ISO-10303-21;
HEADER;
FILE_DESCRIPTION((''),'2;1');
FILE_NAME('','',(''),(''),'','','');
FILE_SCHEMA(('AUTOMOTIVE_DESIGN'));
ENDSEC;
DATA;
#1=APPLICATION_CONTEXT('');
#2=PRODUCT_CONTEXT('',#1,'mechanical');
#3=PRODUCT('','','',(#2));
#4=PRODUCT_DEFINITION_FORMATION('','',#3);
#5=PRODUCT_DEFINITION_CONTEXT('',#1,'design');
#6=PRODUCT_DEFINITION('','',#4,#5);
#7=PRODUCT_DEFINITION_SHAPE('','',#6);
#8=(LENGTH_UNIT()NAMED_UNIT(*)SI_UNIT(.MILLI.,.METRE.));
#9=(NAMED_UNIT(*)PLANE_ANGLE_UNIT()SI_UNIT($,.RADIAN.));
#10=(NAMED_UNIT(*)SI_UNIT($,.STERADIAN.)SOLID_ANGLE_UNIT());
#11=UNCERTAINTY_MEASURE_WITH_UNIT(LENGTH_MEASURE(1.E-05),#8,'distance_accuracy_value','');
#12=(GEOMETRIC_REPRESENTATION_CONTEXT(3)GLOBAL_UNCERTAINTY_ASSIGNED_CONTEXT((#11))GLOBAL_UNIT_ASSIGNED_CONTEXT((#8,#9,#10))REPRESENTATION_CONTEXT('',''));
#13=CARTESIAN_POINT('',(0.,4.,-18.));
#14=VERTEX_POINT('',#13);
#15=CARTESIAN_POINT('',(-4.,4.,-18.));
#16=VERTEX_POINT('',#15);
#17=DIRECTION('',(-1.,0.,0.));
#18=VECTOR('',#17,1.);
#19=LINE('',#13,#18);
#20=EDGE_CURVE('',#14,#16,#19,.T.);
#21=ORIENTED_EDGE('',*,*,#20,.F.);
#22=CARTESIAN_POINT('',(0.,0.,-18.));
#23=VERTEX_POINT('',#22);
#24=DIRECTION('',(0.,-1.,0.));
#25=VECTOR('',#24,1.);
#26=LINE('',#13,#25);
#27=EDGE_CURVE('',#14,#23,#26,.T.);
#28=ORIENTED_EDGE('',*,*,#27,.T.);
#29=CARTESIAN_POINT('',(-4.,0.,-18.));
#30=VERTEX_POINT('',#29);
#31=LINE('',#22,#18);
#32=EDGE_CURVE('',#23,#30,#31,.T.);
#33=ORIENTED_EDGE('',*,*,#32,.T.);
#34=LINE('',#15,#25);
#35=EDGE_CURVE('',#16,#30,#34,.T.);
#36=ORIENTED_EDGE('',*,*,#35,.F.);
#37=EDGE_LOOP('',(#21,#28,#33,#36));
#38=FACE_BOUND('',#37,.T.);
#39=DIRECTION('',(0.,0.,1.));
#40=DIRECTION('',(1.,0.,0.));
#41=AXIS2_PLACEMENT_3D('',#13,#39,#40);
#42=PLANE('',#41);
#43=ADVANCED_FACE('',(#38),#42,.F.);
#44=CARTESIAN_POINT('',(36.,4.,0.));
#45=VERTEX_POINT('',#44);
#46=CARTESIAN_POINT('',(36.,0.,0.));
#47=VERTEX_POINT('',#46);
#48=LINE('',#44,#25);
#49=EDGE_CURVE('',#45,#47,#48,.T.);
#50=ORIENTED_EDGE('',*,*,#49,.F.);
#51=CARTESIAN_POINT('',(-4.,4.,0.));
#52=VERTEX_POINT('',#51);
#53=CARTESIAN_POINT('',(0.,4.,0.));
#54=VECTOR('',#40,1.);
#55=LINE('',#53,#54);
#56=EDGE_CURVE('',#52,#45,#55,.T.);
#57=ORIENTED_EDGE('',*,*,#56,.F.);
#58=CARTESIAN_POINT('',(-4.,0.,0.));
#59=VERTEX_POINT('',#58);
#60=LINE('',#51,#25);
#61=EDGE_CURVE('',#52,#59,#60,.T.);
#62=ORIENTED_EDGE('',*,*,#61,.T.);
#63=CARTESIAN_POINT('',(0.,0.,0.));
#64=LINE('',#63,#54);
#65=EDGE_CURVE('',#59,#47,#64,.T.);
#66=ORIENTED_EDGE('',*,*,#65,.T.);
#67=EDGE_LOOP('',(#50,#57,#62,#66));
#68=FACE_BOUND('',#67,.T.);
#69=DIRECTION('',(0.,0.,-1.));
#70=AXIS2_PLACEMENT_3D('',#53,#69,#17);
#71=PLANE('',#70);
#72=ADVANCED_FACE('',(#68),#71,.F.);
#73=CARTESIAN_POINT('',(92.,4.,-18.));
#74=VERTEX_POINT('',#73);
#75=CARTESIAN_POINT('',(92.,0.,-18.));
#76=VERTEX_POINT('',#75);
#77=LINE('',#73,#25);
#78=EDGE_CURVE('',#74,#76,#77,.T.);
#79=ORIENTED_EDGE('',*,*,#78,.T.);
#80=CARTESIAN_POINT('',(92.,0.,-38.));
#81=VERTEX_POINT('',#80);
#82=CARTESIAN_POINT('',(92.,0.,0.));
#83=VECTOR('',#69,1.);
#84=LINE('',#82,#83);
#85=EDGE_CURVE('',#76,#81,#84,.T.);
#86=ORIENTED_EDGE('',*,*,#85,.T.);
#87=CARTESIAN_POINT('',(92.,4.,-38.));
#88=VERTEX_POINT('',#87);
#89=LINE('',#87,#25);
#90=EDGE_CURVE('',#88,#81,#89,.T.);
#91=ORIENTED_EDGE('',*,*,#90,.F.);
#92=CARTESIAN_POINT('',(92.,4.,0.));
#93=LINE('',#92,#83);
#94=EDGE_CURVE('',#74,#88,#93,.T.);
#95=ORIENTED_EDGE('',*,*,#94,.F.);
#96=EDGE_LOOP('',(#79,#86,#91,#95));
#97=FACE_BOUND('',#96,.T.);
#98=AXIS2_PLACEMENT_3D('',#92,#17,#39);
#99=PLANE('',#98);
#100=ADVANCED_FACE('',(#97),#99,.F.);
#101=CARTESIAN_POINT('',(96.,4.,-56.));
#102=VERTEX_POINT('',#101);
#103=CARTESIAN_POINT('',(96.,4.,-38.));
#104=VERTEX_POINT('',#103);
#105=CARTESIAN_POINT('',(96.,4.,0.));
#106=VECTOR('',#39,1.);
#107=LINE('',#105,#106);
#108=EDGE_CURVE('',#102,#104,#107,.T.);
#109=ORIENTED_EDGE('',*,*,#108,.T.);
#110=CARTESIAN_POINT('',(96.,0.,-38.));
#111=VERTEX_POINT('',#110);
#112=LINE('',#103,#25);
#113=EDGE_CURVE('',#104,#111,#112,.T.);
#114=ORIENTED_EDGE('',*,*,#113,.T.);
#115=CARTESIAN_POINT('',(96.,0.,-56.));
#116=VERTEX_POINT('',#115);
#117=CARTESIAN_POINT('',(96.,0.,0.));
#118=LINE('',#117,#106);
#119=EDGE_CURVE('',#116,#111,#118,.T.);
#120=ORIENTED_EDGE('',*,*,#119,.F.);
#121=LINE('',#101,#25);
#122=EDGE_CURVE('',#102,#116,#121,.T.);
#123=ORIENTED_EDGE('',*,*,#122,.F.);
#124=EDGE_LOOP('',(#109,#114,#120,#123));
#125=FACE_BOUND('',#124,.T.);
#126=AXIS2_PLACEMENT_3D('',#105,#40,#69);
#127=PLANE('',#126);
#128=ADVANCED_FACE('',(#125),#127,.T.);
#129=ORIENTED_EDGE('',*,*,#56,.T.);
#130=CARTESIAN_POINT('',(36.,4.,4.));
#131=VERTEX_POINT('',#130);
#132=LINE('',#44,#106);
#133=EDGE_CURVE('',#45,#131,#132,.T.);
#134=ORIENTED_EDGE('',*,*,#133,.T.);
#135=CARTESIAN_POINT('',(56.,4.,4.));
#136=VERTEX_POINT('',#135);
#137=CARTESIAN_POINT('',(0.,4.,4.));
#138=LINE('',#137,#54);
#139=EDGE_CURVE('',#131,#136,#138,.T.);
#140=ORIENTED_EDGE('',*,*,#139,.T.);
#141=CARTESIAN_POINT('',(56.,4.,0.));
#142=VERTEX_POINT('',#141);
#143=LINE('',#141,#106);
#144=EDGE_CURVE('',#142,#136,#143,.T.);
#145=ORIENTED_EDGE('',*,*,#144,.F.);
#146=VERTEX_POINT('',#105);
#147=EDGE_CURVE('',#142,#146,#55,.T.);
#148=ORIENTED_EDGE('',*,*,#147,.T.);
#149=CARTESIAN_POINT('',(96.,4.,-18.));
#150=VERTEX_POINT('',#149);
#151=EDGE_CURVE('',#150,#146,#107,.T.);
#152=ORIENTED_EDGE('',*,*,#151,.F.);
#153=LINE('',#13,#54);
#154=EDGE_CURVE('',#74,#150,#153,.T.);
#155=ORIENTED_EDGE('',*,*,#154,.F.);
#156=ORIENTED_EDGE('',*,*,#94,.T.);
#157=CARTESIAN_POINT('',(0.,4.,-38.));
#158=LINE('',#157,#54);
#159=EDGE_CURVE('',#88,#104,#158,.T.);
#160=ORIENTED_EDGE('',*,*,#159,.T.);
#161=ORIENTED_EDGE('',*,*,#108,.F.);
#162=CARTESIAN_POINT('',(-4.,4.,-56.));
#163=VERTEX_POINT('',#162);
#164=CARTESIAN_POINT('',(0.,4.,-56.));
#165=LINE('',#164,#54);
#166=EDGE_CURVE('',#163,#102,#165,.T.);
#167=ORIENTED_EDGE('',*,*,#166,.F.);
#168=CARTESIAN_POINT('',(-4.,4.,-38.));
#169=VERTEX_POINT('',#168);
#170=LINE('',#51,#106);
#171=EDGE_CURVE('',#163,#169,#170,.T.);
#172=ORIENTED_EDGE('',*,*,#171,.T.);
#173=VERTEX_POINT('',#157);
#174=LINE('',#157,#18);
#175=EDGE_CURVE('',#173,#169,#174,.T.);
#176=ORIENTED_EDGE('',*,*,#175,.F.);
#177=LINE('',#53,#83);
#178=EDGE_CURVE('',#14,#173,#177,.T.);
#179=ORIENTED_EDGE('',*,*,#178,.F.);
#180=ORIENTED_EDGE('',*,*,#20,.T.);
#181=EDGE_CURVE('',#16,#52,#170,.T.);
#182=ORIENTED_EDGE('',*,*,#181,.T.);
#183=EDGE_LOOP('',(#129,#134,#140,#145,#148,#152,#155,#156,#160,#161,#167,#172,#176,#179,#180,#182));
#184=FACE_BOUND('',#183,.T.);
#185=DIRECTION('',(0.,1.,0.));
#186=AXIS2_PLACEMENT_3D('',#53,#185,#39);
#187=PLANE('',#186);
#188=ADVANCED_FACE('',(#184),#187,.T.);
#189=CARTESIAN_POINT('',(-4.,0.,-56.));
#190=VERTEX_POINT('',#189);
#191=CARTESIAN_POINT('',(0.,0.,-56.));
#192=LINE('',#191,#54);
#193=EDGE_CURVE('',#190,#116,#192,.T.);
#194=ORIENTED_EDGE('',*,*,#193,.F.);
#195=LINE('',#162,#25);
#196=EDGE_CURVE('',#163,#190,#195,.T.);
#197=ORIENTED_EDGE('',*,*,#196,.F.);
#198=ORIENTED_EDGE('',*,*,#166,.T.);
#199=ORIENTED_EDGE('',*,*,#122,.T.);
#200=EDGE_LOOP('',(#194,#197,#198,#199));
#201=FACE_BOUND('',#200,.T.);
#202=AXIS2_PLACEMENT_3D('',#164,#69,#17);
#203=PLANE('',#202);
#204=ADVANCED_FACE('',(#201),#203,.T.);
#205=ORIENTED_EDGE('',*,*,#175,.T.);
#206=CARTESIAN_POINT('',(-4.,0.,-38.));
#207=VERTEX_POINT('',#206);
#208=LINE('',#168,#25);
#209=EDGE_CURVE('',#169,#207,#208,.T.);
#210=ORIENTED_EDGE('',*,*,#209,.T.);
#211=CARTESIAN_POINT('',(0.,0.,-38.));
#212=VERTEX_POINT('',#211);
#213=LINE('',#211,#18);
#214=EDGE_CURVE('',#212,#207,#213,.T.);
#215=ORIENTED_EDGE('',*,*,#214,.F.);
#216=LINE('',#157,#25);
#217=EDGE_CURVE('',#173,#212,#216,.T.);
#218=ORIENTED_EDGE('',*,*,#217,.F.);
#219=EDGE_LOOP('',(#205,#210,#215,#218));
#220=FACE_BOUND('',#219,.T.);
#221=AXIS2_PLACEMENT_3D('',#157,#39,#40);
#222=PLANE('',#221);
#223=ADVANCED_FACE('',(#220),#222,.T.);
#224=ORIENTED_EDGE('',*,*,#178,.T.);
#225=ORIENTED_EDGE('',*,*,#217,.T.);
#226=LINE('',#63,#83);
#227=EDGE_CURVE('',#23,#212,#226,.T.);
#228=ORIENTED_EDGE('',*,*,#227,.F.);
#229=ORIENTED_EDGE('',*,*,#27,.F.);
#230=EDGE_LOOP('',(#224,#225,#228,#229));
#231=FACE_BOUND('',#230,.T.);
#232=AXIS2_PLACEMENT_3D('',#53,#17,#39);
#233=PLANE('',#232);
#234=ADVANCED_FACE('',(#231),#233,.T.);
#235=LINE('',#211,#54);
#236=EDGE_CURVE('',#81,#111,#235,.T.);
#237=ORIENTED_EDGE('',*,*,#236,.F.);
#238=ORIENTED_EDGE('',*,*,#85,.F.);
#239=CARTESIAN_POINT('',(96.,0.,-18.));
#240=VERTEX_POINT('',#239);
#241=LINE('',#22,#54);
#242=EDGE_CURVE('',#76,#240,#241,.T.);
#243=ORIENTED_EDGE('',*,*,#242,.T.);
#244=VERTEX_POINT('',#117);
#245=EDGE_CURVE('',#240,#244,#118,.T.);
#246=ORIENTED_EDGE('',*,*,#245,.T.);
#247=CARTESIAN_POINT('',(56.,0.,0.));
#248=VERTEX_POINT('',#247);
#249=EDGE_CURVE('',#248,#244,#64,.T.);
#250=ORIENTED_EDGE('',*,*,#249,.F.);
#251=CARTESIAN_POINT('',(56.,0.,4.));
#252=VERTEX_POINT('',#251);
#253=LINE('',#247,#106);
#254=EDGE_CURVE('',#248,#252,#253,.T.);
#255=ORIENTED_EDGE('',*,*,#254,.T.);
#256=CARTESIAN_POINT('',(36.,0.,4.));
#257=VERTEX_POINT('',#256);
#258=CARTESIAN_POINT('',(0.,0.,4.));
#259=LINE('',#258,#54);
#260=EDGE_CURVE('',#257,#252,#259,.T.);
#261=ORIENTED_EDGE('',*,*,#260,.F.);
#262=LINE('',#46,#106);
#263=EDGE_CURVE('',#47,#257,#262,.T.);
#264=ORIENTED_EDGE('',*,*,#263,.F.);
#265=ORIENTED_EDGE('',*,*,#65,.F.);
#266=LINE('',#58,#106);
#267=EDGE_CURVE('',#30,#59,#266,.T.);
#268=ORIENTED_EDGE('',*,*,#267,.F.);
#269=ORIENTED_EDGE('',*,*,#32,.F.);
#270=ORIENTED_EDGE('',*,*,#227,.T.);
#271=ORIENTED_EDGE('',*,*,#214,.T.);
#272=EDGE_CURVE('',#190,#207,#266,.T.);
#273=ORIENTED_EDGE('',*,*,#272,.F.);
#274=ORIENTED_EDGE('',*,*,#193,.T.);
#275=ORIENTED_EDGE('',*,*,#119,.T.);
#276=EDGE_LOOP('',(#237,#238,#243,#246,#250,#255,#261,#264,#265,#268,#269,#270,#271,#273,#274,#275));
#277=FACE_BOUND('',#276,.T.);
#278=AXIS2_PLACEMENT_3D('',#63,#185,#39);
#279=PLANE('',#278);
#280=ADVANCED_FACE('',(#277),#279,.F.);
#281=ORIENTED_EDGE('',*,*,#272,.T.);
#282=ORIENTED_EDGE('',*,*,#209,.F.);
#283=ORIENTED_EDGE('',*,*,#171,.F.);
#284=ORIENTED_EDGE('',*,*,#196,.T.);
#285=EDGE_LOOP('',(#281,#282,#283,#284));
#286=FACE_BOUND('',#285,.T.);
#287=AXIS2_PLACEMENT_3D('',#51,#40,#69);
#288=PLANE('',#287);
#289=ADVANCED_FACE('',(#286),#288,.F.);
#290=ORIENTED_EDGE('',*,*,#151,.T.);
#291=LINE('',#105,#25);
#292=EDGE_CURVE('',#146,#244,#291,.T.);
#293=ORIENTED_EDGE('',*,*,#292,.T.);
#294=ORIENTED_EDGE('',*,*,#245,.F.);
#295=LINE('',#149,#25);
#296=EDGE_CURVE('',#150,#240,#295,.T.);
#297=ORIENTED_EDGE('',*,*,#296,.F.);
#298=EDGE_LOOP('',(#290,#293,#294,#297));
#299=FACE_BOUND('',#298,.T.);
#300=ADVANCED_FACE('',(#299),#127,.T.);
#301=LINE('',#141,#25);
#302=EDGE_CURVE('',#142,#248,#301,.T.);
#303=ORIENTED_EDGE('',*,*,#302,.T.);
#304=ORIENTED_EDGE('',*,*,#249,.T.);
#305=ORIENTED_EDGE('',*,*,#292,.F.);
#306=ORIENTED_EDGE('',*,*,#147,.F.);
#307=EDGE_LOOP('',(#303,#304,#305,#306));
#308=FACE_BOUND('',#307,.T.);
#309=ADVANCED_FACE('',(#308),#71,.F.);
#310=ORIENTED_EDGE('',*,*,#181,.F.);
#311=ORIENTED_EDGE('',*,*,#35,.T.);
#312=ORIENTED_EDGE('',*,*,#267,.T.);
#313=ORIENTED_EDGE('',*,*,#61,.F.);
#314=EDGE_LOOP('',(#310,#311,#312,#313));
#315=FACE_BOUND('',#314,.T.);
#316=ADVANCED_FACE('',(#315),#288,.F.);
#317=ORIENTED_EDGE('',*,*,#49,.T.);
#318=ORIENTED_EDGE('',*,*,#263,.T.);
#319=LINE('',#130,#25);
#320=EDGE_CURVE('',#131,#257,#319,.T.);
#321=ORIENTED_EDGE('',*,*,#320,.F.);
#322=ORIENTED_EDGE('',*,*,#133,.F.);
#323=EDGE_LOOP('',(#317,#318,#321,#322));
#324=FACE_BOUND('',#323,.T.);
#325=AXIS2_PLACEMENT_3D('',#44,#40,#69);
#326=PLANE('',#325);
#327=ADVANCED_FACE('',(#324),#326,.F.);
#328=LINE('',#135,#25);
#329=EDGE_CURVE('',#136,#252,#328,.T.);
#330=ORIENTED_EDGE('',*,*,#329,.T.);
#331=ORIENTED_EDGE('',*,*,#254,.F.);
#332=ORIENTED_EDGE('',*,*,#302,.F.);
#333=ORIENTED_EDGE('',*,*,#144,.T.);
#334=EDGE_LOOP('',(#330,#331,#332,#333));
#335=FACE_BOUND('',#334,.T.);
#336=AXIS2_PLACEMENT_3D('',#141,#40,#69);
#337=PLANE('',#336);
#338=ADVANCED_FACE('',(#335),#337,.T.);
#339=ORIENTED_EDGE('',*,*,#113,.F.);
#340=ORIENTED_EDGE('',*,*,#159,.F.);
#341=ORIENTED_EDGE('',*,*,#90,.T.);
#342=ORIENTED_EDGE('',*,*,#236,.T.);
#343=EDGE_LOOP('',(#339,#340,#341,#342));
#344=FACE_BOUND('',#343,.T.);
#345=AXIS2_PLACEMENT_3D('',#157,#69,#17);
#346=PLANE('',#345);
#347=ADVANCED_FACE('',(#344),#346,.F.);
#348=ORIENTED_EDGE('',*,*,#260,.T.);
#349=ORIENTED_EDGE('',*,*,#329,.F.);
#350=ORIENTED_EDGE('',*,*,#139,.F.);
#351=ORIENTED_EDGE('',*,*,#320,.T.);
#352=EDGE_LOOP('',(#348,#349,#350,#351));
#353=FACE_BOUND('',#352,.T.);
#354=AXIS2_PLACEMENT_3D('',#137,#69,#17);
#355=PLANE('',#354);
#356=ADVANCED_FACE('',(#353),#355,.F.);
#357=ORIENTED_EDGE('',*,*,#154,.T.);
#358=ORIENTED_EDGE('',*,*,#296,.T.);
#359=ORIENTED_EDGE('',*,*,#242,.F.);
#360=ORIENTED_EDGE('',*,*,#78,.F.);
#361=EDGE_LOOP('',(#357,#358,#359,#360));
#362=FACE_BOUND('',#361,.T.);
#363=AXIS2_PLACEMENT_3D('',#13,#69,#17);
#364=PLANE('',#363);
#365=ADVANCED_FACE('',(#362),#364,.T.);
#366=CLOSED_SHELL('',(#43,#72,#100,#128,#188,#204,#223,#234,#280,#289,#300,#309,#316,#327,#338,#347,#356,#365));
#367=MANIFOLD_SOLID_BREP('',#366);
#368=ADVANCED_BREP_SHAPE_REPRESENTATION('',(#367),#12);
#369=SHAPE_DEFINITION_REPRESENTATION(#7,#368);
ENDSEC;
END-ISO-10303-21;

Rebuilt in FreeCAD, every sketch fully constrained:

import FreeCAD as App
import Part
import Sketcher

V = App.Vector

doc = App.newDocument("Part")
body = doc.addObject("PartDesign::Body", "Body")

# Sketch on XZ plane
sketch1 = body.newObject("Sketcher::SketchObject", "Sketch")
sketch1.AttachmentSupport = (doc.getObject("XZ_Plane"), [""])
sketch1.MapMode = "FlatFace"
sketch1.addGeometry(Part.LineSegment(V(0, -38, 0), V(0, -18, 0)), False)
sketch1.addGeometry(Part.LineSegment(V(0, -18, 0), V(-4, -18, 0)), False)
sketch1.addGeometry(Part.LineSegment(V(-4, -18, 0), V(-4, 0, 0)), False)
sketch1.addGeometry(Part.LineSegment(V(-4, 0, 0), V(36, 0, 0)), False)
sketch1.addGeometry(Part.LineSegment(V(36, 0, 0), V(36, 4, 0)), False)
sketch1.addGeometry(Part.LineSegment(V(36, 4, 0), V(56, 4, 0)), False)
sketch1.addGeometry(Part.LineSegment(V(56, 4, 0), V(56, 0, 0)), False)
sketch1.addGeometry(Part.LineSegment(V(56, 0, 0), V(96, 0, 0)), False)
sketch1.addGeometry(Part.LineSegment(V(96, 0, 0), V(96, -18, 0)), False)
sketch1.addGeometry(Part.LineSegment(V(96, -18, 0), V(92, -18, 0)), False)
sketch1.addGeometry(Part.LineSegment(V(92, -18, 0), V(92, -38, 0)), False)
sketch1.addGeometry(Part.LineSegment(V(92, -38, 0), V(96, -38, 0)), False)
sketch1.addGeometry(Part.LineSegment(V(96, -38, 0), V(96, -56, 0)), False)
sketch1.addGeometry(Part.LineSegment(V(96, -56, 0), V(-4, -56, 0)), False)
sketch1.addGeometry(Part.LineSegment(V(-4, -56, 0), V(-4, -38, 0)), False)
sketch1.addGeometry(Part.LineSegment(V(-4, -38, 0), V(0, -38, 0)), False)
sketch1.addConstraint(Sketcher.Constraint("Coincident", 0, 2, 1, 1))
sketch1.addConstraint(Sketcher.Constraint("Coincident", 1, 2, 2, 1))
sketch1.addConstraint(Sketcher.Constraint("Coincident", 2, 2, 3, 1))
sketch1.addConstraint(Sketcher.Constraint("Coincident", 3, 2, 4, 1))
sketch1.addConstraint(Sketcher.Constraint("Coincident", 4, 2, 5, 1))
sketch1.addConstraint(Sketcher.Constraint("Coincident", 5, 2, 6, 1))
sketch1.addConstraint(Sketcher.Constraint("Coincident", 6, 2, 7, 1))
sketch1.addConstraint(Sketcher.Constraint("Coincident", 7, 2, 8, 1))
sketch1.addConstraint(Sketcher.Constraint("Coincident", 8, 2, 9, 1))
sketch1.addConstraint(Sketcher.Constraint("Coincident", 9, 2, 10, 1))
sketch1.addConstraint(Sketcher.Constraint("Coincident", 10, 2, 11, 1))
sketch1.addConstraint(Sketcher.Constraint("Coincident", 11, 2, 12, 1))
sketch1.addConstraint(Sketcher.Constraint("Coincident", 12, 2, 13, 1))
sketch1.addConstraint(Sketcher.Constraint("Coincident", 13, 2, 14, 1))
sketch1.addConstraint(Sketcher.Constraint("Coincident", 14, 2, 15, 1))
sketch1.addConstraint(Sketcher.Constraint("Coincident", 15, 2, 0, 1))
sketch1.addConstraint(Sketcher.Constraint("Vertical", 0))
sketch1.addConstraint(Sketcher.Constraint("Horizontal", 1))
sketch1.addConstraint(Sketcher.Constraint("Vertical", 2))
sketch1.addConstraint(Sketcher.Constraint("Horizontal", 3))
sketch1.addConstraint(Sketcher.Constraint("Vertical", 4))
sketch1.addConstraint(Sketcher.Constraint("Horizontal", 5))
sketch1.addConstraint(Sketcher.Constraint("Vertical", 6))
sketch1.addConstraint(Sketcher.Constraint("Horizontal", 7))
sketch1.addConstraint(Sketcher.Constraint("Vertical", 8))
sketch1.addConstraint(Sketcher.Constraint("Horizontal", 9))
sketch1.addConstraint(Sketcher.Constraint("Vertical", 10))
sketch1.addConstraint(Sketcher.Constraint("Horizontal", 11))
sketch1.addConstraint(Sketcher.Constraint("Vertical", 12))
sketch1.addConstraint(Sketcher.Constraint("Horizontal", 13))
sketch1.addConstraint(Sketcher.Constraint("Vertical", 14))
sketch1.addConstraint(Sketcher.Constraint("Horizontal", 15))
sketch1.addConstraint(Sketcher.Constraint("PointOnObject", 0, 2, -2))
sketch1.addConstraint(Sketcher.Constraint("PointOnObject", 2, 2, -1))
sketch1.addConstraint(Sketcher.Constraint("PointOnObject", 6, 2, -1))
sketch1.addConstraint(Sketcher.Constraint("Horizontal", 1, 2, 8, 2))
sketch1.addConstraint(Sketcher.Constraint("Horizontal", 11, 2, 14, 2))
sketch1.addConstraint(Sketcher.Constraint("Vertical", 8, 2, 11, 2))
sketch1.addConstraint(Sketcher.Constraint("Vertical", 2, 2, 13, 2))
sketch1.addConstraint(Sketcher.Constraint("Equal", 3, 7))
sketch1.addConstraint(Sketcher.Constraint("Equal", 1, 9))
sketch1.addConstraint(Sketcher.Constraint("Equal", 5, 0))
sketch1.addConstraint(Sketcher.Constraint("Equal", 15, 4))
sketch1.addConstraint(Sketcher.Constraint("Equal", 8, 12))
sketch1.addConstraint(Sketcher.Constraint("DistanceX", 1, 2, 1, 1, 4.0))
sketch1.addConstraint(Sketcher.Constraint("DistanceX", 3, 1, 3, 2, 40.0))
sketch1.addConstraint(Sketcher.Constraint("DistanceX", 5, 1, 5, 2, 20.0))
sketch1.addConstraint(Sketcher.Constraint("DistanceY", 2, 1, 2, 2, 18.0))
pad1 = body.newObject("PartDesign::Pad", "Pad")
pad1.Profile = sketch1
pad1.Length = 4
pad1.Reversed = True

doc.recompute()
